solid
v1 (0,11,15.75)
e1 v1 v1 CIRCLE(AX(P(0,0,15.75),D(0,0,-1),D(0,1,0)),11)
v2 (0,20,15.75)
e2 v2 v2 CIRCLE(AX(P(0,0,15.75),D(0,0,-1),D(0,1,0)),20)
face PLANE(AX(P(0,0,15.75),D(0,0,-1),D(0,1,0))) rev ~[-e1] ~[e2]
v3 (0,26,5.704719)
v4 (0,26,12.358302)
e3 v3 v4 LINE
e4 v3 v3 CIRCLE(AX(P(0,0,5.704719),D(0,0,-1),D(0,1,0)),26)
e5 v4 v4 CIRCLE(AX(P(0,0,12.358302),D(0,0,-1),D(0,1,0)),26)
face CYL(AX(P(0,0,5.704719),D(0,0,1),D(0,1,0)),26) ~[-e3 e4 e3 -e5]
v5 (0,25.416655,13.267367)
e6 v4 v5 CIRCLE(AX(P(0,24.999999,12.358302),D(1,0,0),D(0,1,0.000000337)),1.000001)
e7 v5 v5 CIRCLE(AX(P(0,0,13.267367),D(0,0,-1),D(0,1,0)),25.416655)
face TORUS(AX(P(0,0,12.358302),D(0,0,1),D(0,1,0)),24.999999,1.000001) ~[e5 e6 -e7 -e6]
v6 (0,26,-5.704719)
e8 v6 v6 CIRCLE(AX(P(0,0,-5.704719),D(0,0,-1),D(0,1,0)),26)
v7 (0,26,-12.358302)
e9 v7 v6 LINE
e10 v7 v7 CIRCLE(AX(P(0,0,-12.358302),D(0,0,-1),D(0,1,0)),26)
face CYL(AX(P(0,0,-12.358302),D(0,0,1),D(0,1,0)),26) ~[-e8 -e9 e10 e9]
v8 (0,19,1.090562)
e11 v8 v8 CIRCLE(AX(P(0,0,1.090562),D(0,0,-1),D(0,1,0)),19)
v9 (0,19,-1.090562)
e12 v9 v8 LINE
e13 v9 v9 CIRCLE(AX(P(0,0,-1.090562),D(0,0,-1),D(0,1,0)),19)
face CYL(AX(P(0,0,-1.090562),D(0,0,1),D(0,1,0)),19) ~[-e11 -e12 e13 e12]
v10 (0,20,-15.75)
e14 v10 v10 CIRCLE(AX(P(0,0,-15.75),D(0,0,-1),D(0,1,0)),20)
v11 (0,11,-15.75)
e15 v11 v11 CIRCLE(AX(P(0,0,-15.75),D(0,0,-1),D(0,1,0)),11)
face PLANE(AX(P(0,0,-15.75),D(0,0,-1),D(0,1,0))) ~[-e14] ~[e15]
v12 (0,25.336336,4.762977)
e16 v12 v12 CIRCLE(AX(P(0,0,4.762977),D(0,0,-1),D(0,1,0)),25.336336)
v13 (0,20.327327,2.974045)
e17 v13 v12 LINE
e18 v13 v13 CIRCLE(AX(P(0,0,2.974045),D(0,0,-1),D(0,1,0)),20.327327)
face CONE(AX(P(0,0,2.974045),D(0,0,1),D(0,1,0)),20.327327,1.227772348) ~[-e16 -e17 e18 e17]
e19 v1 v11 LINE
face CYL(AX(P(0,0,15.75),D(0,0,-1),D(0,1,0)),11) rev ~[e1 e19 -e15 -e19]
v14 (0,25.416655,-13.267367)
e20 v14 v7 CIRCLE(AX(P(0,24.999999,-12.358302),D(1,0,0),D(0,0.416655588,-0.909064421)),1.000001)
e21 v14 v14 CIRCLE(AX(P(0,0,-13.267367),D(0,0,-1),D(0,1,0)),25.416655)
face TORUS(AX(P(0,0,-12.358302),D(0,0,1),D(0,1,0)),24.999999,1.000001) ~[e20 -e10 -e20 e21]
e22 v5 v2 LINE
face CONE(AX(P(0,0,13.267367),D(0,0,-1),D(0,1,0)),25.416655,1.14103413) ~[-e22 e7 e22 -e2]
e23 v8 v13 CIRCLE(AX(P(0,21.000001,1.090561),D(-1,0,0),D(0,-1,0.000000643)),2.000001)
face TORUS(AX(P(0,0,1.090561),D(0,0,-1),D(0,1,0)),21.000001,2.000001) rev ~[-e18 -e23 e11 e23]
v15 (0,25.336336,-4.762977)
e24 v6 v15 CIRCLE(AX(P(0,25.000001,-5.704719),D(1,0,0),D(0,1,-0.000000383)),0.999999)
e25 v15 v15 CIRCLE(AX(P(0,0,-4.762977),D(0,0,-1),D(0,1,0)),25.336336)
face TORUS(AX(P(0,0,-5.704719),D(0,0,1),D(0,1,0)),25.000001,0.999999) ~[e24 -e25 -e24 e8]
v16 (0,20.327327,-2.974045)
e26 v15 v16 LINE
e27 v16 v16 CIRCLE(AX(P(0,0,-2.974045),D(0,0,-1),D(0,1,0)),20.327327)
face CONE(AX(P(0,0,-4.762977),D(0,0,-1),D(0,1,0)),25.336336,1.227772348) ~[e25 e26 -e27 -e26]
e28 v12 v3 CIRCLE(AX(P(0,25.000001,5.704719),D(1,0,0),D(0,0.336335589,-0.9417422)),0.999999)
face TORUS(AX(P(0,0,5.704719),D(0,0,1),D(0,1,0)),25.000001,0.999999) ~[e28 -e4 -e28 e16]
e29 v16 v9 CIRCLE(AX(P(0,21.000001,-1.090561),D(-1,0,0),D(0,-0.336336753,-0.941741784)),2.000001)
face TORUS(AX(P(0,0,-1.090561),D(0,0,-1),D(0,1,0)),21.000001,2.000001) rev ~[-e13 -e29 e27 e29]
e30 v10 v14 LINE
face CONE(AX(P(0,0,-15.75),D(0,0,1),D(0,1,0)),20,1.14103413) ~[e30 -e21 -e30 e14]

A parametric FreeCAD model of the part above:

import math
import FreeCAD as App
import Part
import Sketcher
from FreeCAD import Vector
Q = App.Units.Quantity

doc = App.newDocument("Part")
body = doc.addObject("PartDesign::Body", "Body")

# Sketch on YZ plane
sketch1 = body.newObject("Sketcher::SketchObject", "Sketch")
sketch1.AttachmentSupport = (doc.getObject("YZ_Plane"), [""])
sketch1.MapMode = "FlatFace"
sketch1.addGeometry([
    Part.LineSegment(Vector(20, 15.8, 0), Vector(11, 15.8, 0)),  # 0
    Part.LineSegment(Vector(11, 15.8, 0), Vector(11, -15.8, 0)),  # 1
    Part.LineSegment(Vector(11, -15.8, 0), Vector(20, -15.8, 0)),  # 2
    Part.LineSegment(Vector(20, -15.8, 0), Vector(25.4, -13.3, 0)),  # 3
    Part.ArcOfCircle(Part.Circle(Vector(25, -12.4, 0), Vector(0, 0, 1), 1), math.radians(-65), math.radians(0)),  # 4
    Part.LineSegment(Vector(26, -12.4, 0), Vector(26, -5.7, 0)),  # 5
    Part.ArcOfCircle(Part.Circle(Vector(25, -5.7, 0), Vector(0, 0, 1), 1), math.radians(0), math.radians(70)),  # 6
    Part.LineSegment(Vector(25.3, -4.8, 0), Vector(20.3, -3, 0)),  # 7
    Part.ArcOfCircle(Part.Circle(Vector(21, -1.1, 0), Vector(0, 0, 1), 2), math.radians(-180), math.radians(-110)),  # 8
    Part.LineSegment(Vector(19, -1.1, 0), Vector(19, 1.1, 0)),  # 9
    Part.ArcOfCircle(Part.Circle(Vector(21, 1.1, 0), Vector(0, 0, 1), 2), math.radians(110), math.radians(180)),  # 10
    Part.LineSegment(Vector(20.3, 3, 0), Vector(25.3, 4.8, 0)),  # 11
    Part.ArcOfCircle(Part.Circle(Vector(25, 5.7, 0), Vector(0, 0, 1), 1), math.radians(-70), math.radians(0)),  # 12
    Part.LineSegment(Vector(26, 5.7, 0), Vector(26, 12.4, 0)),  # 13
    Part.ArcOfCircle(Part.Circle(Vector(25, 12.4, 0), Vector(0, 0, 1), 1), math.radians(0), math.radians(65)),  # 14
    Part.LineSegment(Vector(25.4, 13.3, 0), Vector(20, 15.8, 0)),  # 15
], False)
sketch1.addConstraint([
    Sketcher.Constraint("Coincident", 0, 2, 1, 1),
    Sketcher.Constraint("Coincident", 1, 2, 2, 1),
    Sketcher.Constraint("Coincident", 2, 2, 3, 1),
    Sketcher.Constraint("Tangent", 3, 2, 4, 1),
    Sketcher.Constraint("Tangent", 4, 2, 5, 1),
    Sketcher.Constraint("Tangent", 5, 2, 6, 1),
    Sketcher.Constraint("Tangent", 6, 2, 7, 1),
    Sketcher.Constraint("Tangent", 7, 2, 8, 2),
    Sketcher.Constraint("Tangent", 8, 1, 9, 1),
    Sketcher.Constraint("Tangent", 9, 2, 10, 2),
    Sketcher.Constraint("Tangent", 10, 1, 11, 1),
    Sketcher.Constraint("Tangent", 11, 2, 12, 1),
    Sketcher.Constraint("Tangent", 12, 2, 13, 1),
    Sketcher.Constraint("Tangent", 13, 2, 14, 1),
    Sketcher.Constraint("Tangent", 14, 2, 15, 1),
    Sketcher.Constraint("Coincident", 15, 2, 0, 1),
    Sketcher.Constraint("Horizontal", 0),
    Sketcher.Constraint("Vertical", 1),
    Sketcher.Constraint("Horizontal", 2),
    Sketcher.Constraint("Vertical", 5),
    Sketcher.Constraint("Vertical", 9),
    Sketcher.Constraint("Vertical", 13),
    Sketcher.Constraint("Equal", 4, 6),
    Sketcher.Constraint("Equal", 8, 10),
    Sketcher.Constraint("Equal", 6, 12),
    Sketcher.Constraint("Equal", 12, 14),
    Sketcher.Constraint("Symmetric", 6, 3, 12, 3, -1),
    Sketcher.Constraint("Symmetric", 3, 2, 14, 2, -1),
    Sketcher.Constraint("Vertical", 7, 2, 10, 1),
    Sketcher.Constraint("Vertical", 2, 2, 15, 2),
    Sketcher.Constraint("Radius", 4, Q("1.000001 mm")),
    Sketcher.Constraint("Radius", 8, Q("2.000001 mm")),
    Sketcher.Constraint("DistanceX", 0, 2, 0, 1, Q("9 mm")),
    Sketcher.Constraint("DistanceY", 1, 2, 1, 1, Q("31.5 mm")),
    Sketcher.Constraint("DistanceX", -1, 1, 4, 3, Q("24.999999 mm")),
    Sketcher.Constraint("DistanceX", -1, 1, 8, 3, Q("21.000001 mm")),
    Sketcher.Constraint("DistanceX", -1, 1, 0, 2, Q("11 mm")),
    Sketcher.Constraint("DistanceY", 4, 3, -1, 1, Q("12.358302 mm")),
    Sketcher.Constraint("DistanceY", 5, 1, 5, 2, Q("6.653583 mm")),
    Sketcher.Constraint("DistanceY", 9, 1, 9, 2, Q("2.181124 mm")),
])
revolution = body.newObject("PartDesign::Revolution", "Revolution")
revolution.Profile = sketch1
revolution.ReferenceAxis = (sketch1, ["V_Axis"])
revolution.Angle = 360

doc.recompute()
